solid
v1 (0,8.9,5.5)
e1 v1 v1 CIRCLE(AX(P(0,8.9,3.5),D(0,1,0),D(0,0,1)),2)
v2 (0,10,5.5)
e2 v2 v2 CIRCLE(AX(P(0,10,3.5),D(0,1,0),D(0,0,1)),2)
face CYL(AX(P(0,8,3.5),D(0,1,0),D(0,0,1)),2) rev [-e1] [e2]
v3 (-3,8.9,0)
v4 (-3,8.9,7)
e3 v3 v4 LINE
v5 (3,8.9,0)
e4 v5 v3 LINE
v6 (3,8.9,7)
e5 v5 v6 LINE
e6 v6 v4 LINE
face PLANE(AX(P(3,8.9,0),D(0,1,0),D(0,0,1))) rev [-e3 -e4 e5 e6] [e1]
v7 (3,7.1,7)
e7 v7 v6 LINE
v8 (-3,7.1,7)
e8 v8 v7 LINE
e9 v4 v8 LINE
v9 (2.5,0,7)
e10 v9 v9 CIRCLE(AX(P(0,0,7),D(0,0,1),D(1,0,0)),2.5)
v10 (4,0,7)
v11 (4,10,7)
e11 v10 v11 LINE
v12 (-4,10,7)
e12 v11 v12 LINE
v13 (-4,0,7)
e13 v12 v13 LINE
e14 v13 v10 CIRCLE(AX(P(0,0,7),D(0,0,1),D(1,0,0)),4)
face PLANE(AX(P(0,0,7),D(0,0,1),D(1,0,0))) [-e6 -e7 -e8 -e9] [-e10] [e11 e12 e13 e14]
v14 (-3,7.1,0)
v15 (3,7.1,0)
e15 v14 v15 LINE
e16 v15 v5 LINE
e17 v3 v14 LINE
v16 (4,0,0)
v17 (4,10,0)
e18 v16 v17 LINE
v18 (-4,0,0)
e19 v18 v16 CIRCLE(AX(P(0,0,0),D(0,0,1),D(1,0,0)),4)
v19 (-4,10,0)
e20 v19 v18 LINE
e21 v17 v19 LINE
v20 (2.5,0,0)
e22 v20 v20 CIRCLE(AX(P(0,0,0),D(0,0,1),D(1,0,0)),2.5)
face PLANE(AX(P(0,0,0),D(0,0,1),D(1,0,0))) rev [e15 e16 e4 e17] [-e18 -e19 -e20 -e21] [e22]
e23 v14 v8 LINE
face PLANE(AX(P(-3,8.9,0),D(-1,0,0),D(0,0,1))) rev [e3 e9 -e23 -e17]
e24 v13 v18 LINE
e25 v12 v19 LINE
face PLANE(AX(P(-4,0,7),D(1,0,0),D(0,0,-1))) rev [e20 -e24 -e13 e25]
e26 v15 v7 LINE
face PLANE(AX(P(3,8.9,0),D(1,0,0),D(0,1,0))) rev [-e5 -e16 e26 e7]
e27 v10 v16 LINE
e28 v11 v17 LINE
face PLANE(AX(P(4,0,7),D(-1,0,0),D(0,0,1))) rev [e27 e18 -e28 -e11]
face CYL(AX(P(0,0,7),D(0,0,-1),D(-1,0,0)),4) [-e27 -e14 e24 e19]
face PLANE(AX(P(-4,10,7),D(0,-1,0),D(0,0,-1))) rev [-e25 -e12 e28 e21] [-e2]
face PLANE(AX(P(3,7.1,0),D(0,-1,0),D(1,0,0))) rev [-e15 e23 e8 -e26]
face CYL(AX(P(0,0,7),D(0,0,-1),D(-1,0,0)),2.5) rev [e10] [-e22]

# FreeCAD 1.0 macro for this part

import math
import FreeCAD as App
import Part
import Sketcher

V = App.Vector
Q = App.Units.Quantity

doc = App.newDocument("Part")
body = doc.addObject("PartDesign::Body", "Body")

sketch1 = body.newObject("Sketcher::SketchObject", "Sketch")
sketch1.AttachmentSupport = (doc.getObject("XY_Plane"), [""])
sketch1.MapMode = "FlatFace"
sketch1.addGeometry([
    Part.LineSegment(V(-4, 10, 0), V(-4, 0, 0)),
    Part.ArcOfCircle(Part.Circle(V(0, 0, 0), V(0, 0, 1), 4), math.radians(180), math.radians(360)),
    Part.LineSegment(V(4, 0, 0), V(4, 10, 0)),
    Part.LineSegment(V(4, 10, 0), V(-4, 10, 0)),
    Part.Circle(V(0, 0, 0), V(0, 0, 1), 2.5),
], False)
sketch1.addConstraint([
    Sketcher.Constraint("Tangent", 0, 2, 1, 1),
    Sketcher.Constraint("Tangent", 1, 2, 2, 1),
    Sketcher.Constraint("Coincident", 2, 2, 3, 1),
    Sketcher.Constraint("Coincident", 3, 2, 0, 1),
    Sketcher.Constraint("Vertical", 0),
    Sketcher.Constraint("Vertical", 2),
    Sketcher.Constraint("Horizontal", 3),
    Sketcher.Constraint("Coincident", 1, 3, -1, 1),
    Sketcher.Constraint("Coincident", 4, 3, -1, 1),
    Sketcher.Constraint("Diameter", 4, Q("5 mm")),
    Sketcher.Constraint("Radius", 1, Q("4 mm")),
    Sketcher.Constraint("DistanceY", 0, 2, 0, 1, Q("10 mm")),
])
pad1 = body.newObject("PartDesign::Pad", "Pad")
pad1.Profile = sketch1
pad1.Length = 7

sketch2 = body.newObject("Sketcher::SketchObject", "Sketch001")
sketch2.AttachmentSupport = (doc.getObject("XY_Plane"), [""])
sketch2.MapMode = "FlatFace"
sketch2.AttachmentOffset = App.Placement(V(0, 0, 7), App.Rotation())
sketch2.addGeometry([
    Part.LineSegment(V(-3, 8.9, 0), V(-3, 7.1, 0)),
    Part.LineSegment(V(-3, 7.1, 0), V(3, 7.1, 0)),
    Part.LineSegment(V(3, 7.1, 0), V(3, 8.9, 0)),
    Part.LineSegment(V(3, 8.9, 0), V(-3, 8.9, 0)),
], False)
sketch2.addConstraint([
    Sketcher.Constraint("Coincident", 0, 2, 1, 1),
    Sketcher.Constraint("Coincident", 1, 2, 2, 1),
    Sketcher.Constraint("Coincident", 2, 2, 3, 1),
    Sketcher.Constraint("Coincident", 3, 2, 0, 1),
    Sketcher.Constraint("Vertical", 0),
    Sketcher.Constraint("Horizontal", 1),
    Sketcher.Constraint("Vertical", 2),
    Sketcher.Constraint("Horizontal", 3),
    Sketcher.Constraint("DistanceX", 1, 1, 1, 2, Q("6 mm")),
    Sketcher.Constraint("DistanceY", 0, 2, 0, 1, Q("1.8 mm")),
    Sketcher.Constraint("DistanceX", 0, 2, -1, 1, Q("3 mm")),
    Sketcher.Constraint("DistanceY", -1, 1, 0, 2, Q("7.1 mm")),
])
pocket1 = body.newObject("PartDesign::Pocket", "Pocket")
pocket1.Profile = sketch2
pocket1.Length = 7

sketch3 = body.newObject("Sketcher::SketchObject", "Sketch002")
sketch3.AttachmentSupport = (doc.getObject("XZ_Plane"), [""])
sketch3.MapMode = "FlatFace"
sketch3.AttachmentOffset = App.Placement(V(0, 0, -10), App.Rotation())
sketch3.addGeometry(Part.Circle(V(0, 3.5, 0), V(0, 0, 1), 2), False)
sketch3.addConstraint([
    Sketcher.Constraint("PointOnObject", 0, 3, -2),
    Sketcher.Constraint("Diameter", 0, Q("4 mm")),
    Sketcher.Constraint("DistanceY", -1, 1, 0, 3, Q("3.5 mm")),
])
pocket2 = body.newObject("PartDesign::Pocket", "Pocket001")
pocket2.Profile = sketch3
pocket2.Length = 2
pocket2.Reversed = True

doc.recompute()
